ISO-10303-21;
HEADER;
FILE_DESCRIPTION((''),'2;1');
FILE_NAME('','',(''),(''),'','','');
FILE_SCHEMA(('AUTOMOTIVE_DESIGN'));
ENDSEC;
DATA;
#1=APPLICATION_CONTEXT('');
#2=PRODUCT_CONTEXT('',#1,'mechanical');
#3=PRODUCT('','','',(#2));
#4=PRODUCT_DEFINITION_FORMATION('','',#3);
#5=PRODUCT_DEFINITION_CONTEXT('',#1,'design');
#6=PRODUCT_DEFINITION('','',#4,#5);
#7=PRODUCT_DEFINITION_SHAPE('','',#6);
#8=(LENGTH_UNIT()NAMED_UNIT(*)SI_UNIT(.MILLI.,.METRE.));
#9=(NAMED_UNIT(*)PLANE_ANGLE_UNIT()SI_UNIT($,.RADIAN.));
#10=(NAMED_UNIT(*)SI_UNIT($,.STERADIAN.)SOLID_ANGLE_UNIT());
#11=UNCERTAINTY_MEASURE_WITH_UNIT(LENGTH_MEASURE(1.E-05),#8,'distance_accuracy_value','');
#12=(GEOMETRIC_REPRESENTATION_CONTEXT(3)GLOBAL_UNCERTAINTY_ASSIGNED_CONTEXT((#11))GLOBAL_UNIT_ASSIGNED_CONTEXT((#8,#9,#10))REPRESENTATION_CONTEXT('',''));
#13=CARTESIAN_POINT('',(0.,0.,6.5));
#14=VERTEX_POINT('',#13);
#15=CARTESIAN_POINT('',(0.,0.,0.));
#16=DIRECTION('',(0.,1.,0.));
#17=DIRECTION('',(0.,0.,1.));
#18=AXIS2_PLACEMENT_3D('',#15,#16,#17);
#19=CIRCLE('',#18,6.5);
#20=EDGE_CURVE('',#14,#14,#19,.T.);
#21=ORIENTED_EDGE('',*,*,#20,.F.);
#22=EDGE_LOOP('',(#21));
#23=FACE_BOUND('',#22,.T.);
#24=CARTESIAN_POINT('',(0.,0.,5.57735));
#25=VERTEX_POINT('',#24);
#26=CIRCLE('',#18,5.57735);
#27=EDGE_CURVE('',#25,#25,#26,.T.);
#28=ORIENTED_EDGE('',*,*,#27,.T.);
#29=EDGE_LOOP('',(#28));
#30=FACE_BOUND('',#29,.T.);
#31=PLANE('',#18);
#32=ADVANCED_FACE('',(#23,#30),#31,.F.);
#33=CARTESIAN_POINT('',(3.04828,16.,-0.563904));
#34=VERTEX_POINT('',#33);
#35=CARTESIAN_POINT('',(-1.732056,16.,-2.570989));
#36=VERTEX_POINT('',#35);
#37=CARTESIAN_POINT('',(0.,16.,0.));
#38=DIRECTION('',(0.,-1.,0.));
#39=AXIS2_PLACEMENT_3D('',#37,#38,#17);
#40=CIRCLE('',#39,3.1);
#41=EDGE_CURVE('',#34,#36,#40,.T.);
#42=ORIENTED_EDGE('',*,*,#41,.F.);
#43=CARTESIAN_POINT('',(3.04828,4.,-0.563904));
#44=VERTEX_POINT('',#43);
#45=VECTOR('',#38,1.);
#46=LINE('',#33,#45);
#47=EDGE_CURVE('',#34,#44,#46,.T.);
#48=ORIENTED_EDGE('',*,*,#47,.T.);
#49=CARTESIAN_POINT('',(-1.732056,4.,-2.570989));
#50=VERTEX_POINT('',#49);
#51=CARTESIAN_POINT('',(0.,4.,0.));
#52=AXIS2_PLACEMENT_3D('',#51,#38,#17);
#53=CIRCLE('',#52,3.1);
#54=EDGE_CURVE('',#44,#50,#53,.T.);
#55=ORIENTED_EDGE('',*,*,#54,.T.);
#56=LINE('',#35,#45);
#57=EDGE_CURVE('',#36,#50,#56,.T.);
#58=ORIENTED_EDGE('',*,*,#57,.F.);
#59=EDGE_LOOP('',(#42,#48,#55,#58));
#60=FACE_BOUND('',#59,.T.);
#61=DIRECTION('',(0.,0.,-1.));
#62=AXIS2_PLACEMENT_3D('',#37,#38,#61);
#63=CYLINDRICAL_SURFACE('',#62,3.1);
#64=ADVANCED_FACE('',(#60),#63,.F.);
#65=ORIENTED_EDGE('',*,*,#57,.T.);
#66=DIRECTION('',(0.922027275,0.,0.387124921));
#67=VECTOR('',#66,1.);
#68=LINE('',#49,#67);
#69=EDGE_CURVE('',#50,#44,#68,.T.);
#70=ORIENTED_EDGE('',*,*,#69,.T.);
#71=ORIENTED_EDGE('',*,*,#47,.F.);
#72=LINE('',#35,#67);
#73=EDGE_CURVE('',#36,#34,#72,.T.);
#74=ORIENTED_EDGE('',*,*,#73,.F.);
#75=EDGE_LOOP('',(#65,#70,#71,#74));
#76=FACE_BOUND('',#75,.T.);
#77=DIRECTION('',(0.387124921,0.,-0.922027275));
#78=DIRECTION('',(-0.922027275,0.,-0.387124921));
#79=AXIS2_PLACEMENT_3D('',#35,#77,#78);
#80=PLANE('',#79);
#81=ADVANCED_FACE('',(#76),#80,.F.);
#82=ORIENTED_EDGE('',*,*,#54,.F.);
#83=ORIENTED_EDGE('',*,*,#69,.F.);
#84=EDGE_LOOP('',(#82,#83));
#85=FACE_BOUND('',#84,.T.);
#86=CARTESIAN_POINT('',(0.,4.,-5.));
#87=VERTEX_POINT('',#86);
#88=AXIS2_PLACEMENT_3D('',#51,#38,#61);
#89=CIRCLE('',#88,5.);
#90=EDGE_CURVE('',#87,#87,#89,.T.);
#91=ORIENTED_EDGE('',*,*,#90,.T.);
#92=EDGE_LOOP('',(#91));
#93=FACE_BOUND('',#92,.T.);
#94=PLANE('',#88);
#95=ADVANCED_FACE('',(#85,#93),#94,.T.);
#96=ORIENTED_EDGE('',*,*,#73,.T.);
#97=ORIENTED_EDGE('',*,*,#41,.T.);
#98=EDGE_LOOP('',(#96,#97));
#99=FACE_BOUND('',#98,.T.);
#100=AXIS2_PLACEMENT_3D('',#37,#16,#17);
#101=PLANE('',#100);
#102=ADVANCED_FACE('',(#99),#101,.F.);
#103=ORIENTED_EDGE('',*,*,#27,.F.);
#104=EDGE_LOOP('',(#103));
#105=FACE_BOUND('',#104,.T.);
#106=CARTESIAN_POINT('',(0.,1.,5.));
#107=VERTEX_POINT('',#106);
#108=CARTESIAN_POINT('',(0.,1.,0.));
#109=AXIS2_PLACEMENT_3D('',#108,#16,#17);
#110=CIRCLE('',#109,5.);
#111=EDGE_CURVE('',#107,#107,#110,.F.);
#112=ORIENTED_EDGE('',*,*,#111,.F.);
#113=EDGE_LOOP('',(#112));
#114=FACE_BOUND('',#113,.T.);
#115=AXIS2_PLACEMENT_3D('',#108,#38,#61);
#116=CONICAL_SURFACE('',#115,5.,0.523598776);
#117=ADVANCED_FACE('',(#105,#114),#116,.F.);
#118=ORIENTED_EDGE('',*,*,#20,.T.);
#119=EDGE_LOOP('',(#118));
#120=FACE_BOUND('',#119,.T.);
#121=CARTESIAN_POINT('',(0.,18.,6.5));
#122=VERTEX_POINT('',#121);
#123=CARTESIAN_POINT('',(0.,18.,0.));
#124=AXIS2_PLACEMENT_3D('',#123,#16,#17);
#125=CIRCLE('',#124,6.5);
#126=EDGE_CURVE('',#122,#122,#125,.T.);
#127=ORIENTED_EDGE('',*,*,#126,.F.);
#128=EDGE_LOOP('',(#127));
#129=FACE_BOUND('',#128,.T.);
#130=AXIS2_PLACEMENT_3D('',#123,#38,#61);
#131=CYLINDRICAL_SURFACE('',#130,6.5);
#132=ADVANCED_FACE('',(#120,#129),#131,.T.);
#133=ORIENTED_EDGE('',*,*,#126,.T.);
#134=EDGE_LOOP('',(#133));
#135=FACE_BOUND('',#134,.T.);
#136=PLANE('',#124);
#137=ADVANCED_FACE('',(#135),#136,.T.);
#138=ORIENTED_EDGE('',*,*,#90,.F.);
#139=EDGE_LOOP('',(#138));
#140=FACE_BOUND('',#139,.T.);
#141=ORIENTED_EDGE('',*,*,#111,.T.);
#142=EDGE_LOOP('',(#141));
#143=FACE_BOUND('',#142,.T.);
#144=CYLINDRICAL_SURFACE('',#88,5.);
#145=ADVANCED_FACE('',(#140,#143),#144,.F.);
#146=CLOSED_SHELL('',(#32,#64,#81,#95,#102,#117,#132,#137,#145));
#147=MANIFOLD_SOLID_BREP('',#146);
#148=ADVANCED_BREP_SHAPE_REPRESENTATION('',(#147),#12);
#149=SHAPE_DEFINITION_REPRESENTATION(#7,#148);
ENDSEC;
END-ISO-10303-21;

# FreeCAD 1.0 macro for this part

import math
import FreeCAD as App
import Part
import Sketcher

V = App.Vector


def edges_at(feature, points):
    """Names of the edges that pass closest to the given points."""
    edges = feature.Shape.Edges
    near = lambda p: min(range(len(edges)), key=lambda i: edges[i].distToShape(Part.Vertex(*p))[0])
    return sorted({f"Edge{near(p) + 1}" for p in points})

doc = App.newDocument("Part")
params = doc.addObject("Spreadsheet::Sheet", "Params")
for row, (alias, value) in enumerate([
    ("sketch1_diameter", "13 mm"),
    ("pad1_length", "18 mm"),
    ("sketch2_diameter", "10 mm"),
    ("pocket1_length", "4 mm"),
    ("sketch3_radius", "3.1 mm"),
    ("pocket2_length", "12 mm"),
    ("chamfer_size", "1 mm"),
    ("chamfer_size2", "0.57735 mm"),
], start=1):
    params.set(f"A{row}", alias)
    params.set(f"B{row}", "=" + value)
    params.setAlias(f"B{row}", alias)

body = doc.addObject("PartDesign::Body", "Body")

sketch1 = body.newObject("Sketcher::SketchObject", "Sketch")
sketch1.AttachmentSupport = (doc.getObject("XZ_Plane"), [""])
sketch1.MapMode = "FlatFace"
sketch1.addGeometry(Part.Circle(V(0, 0, 0), V(0, 0, 1), 6), False)
sketch1.addConstraint([
    Sketcher.Constraint("Coincident", 0, 3, -1, 1),
    Sketcher.Constraint("Diameter", 0, 13.0),
])
sketch1.setExpression("Constraints[1]", "Params.sketch1_diameter")
pad1 = body.newObject("PartDesign::Pad", "Pad")
pad1.Profile = sketch1
pad1.setExpression("Length", "Params.pad1_length")
pad1.Reversed = True

sketch2 = body.newObject("Sketcher::SketchObject", "Sketch001")
sketch2.AttachmentSupport = (doc.getObject("XZ_Plane"), [""])
sketch2.MapMode = "FlatFace"
sketch2.addGeometry(Part.Circle(V(0, 0, 0), V(0, 0, 1), 5), False)
sketch2.addConstraint([
    Sketcher.Constraint("Coincident", 0, 3, -1, 1),
    Sketcher.Constraint("Diameter", 0, 10.0),
])
sketch2.setExpression("Constraints[1]", "Params.sketch2_diameter")
pocket1 = body.newObject("PartDesign::Pocket", "Pocket")
pocket1.Profile = sketch2
pocket1.setExpression("Length", "Params.pocket1_length")

sketch3 = body.newObject("Sketcher::SketchObject", "Sketch002")
sketch3.AttachmentSupport = (doc.getObject("XZ_Plane"), [""])
sketch3.MapMode = "FlatFace"
sketch3.AttachmentOffset = App.Placement(V(0, 0, -4), App.Rotation())
sketch3.addGeometry([
    Part.LineSegment(V(-1.7, -2.6, 0), V(3, -0.6, 0)),
    Part.ArcOfCircle(Part.Circle(V(0, 0, 0), V(0, 0, 1), 3.1), math.radians(-10), math.radians(236)),
], False)
sketch3.addConstraint([
    Sketcher.Constraint("Coincident", 0, 1, 1, 2),
    Sketcher.Constraint("Coincident", 1, 1, 0, 2),
    Sketcher.Constraint("Coincident", 1, 3, -1, 1),
    Sketcher.Constraint("Radius", 1, 3.1),
    Sketcher.Constraint("DistanceY", 0, 1, -1, 1, 2.570989),
    Sketcher.Constraint("DistanceX", -1, 1, 1, 1, 3.04828),
])
sketch3.setExpression("Constraints[3]", "Params.sketch3_radius")
pocket2 = body.newObject("PartDesign::Pocket", "Pocket001")
pocket2.Profile = sketch3
pocket2.setExpression("Length", "Params.pocket2_length")
doc.recompute()

chamfer = body.newObject("PartDesign::Chamfer", "Chamfer")
chamfer.Base = (pocket2, edges_at(pocket2, [(0, 0, 5)]))
chamfer.ChamferType = "Two distances"
chamfer.setExpression("Size", "Params.chamfer_size")
chamfer.setExpression("Size2", "Params.chamfer_size2")
chamfer.FlipDirection = True

doc.recompute()
